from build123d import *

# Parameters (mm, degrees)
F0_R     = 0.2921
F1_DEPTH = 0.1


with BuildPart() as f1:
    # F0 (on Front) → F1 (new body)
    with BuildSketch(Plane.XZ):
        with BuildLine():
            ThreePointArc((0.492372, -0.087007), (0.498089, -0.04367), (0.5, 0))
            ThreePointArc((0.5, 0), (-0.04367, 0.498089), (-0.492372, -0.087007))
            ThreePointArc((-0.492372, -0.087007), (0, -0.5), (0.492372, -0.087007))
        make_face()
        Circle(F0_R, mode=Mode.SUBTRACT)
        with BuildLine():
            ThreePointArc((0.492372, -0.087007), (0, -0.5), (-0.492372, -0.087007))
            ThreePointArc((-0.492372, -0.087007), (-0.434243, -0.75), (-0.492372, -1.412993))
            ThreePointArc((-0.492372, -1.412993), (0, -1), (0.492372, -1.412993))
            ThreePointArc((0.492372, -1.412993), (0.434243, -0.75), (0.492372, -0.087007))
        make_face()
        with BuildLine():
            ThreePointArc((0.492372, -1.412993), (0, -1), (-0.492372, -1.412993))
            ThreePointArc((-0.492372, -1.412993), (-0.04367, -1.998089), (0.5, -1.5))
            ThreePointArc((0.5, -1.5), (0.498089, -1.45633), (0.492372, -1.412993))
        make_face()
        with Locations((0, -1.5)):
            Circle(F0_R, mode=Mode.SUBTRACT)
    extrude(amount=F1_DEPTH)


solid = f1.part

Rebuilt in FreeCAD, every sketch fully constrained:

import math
import FreeCAD as App
import Part
import Sketcher

V = App.Vector

doc = App.newDocument("Part")
body = doc.addObject("PartDesign::Body", "Body")

# Sketch on XZ plane
sketch1 = doc.addObject("Sketcher::SketchObject", "Sketch")
body.addObject(sketch1)
sketch1.AttachmentSupport = (doc.XZ_Plane, [""])
sketch1.MapMode = "FlatFace"
sketch1.addGeometry([
    Part.ArcOfCircle(Part.Circle(V(-0.000126, 0.000009, 0), V(0, 0, 1), 0.500126), math.radians(-10.019751), math.radians(-0.000996)),  # 0
    Part.ArcOfCircle(Part.Circle(V(0, 0, 0), V(0, 0, 1), 0.5), math.radians(0.000053), math.radians(190.021227)),  # 1
    Part.ArcOfCircle(Part.Circle(V(-4.244206, -0.75, 0), V(0, 0, 1), 3.809963), math.radians(-10.021377), math.radians(10.021377)),  # 2
    Part.ArcOfCircle(Part.Circle(V(0, -1.5, 0), V(0, 0, 1), 0.5), math.radians(169.978773), math.radians(359.999947)),  # 3
    Part.ArcOfCircle(Part.Circle(V(-0.000126, -1.500009, 0), V(0, 0, 1), 0.500126), math.radians(0.000996), math.radians(10.019751)),  # 4
    Part.ArcOfCircle(Part.Circle(V(4.244206, -0.75, 0), V(0, 0, 1), 3.809963), math.radians(169.978623), math.radians(190.021377)),  # 5
    Part.Circle(V(0, -1.5, 0), V(0, 0, 1), 0.2921),  # 6
    Part.Circle(V(0, 0, 0), V(0, 0, 1), 0.2921),  # 7
], False)
sketch1.addConstraint([
    Sketcher.Constraint("Coincident", 0, 2, 1, 1),
    Sketcher.Constraint("Coincident", 1, 2, 2, 2),
    Sketcher.Constraint("Coincident", 2, 1, 3, 1),
    Sketcher.Constraint("Coincident", 3, 2, 4, 1),
    Sketcher.Constraint("Coincident", 4, 2, 5, 2),
    Sketcher.Constraint("Coincident", 5, 1, 0, 1),
    Sketcher.Constraint("Coincident", 1, 3, -1, 1),
    Sketcher.Constraint("Coincident", 7, 3, -1, 1),
    Sketcher.Constraint("Coincident", 6, 3, 3, 3),
    Sketcher.Constraint("Equal", 1, 3),
    Sketcher.Constraint("Equal", 0, 4),
    Sketcher.Constraint("Equal", 2, 5),
    Sketcher.Constraint("Equal", 6, 7),
    Sketcher.Constraint("Symmetric", 2, 3, 5, 3, -2),
    Sketcher.Constraint("PointOnObject", 3, 3, -2),
    Sketcher.Constraint("PointOnObject", 0, 2, -1),
    Sketcher.Constraint("Horizontal", 6, 3, 3, 2),
    Sketcher.Constraint("Horizontal", 2, 1, 4, 2),
    Sketcher.Constraint("Horizontal", 1, 2, 5, 1),
    Sketcher.Constraint("Vertical", 1, 2, 2, 1),
    Sketcher.Constraint("Radius", 1, 0.5),
    Sketcher.Constraint("Diameter", 6, 0.5842),
    Sketcher.Constraint("DistanceY", 3, 3, -1, 1, 1.5),
    Sketcher.Constraint("Radius", 0, 0.500126),
    Sketcher.Constraint("Radius", 2, 3.809963),
    Sketcher.Constraint("DistanceY", 4, 3, 1, 2, 1.413002),
])
pad1 = doc.addObject("PartDesign::Pad", "Pad")
body.addObject(pad1)
pad1.Profile = sketch1
pad1.Length = 0.1

doc.recompute()
